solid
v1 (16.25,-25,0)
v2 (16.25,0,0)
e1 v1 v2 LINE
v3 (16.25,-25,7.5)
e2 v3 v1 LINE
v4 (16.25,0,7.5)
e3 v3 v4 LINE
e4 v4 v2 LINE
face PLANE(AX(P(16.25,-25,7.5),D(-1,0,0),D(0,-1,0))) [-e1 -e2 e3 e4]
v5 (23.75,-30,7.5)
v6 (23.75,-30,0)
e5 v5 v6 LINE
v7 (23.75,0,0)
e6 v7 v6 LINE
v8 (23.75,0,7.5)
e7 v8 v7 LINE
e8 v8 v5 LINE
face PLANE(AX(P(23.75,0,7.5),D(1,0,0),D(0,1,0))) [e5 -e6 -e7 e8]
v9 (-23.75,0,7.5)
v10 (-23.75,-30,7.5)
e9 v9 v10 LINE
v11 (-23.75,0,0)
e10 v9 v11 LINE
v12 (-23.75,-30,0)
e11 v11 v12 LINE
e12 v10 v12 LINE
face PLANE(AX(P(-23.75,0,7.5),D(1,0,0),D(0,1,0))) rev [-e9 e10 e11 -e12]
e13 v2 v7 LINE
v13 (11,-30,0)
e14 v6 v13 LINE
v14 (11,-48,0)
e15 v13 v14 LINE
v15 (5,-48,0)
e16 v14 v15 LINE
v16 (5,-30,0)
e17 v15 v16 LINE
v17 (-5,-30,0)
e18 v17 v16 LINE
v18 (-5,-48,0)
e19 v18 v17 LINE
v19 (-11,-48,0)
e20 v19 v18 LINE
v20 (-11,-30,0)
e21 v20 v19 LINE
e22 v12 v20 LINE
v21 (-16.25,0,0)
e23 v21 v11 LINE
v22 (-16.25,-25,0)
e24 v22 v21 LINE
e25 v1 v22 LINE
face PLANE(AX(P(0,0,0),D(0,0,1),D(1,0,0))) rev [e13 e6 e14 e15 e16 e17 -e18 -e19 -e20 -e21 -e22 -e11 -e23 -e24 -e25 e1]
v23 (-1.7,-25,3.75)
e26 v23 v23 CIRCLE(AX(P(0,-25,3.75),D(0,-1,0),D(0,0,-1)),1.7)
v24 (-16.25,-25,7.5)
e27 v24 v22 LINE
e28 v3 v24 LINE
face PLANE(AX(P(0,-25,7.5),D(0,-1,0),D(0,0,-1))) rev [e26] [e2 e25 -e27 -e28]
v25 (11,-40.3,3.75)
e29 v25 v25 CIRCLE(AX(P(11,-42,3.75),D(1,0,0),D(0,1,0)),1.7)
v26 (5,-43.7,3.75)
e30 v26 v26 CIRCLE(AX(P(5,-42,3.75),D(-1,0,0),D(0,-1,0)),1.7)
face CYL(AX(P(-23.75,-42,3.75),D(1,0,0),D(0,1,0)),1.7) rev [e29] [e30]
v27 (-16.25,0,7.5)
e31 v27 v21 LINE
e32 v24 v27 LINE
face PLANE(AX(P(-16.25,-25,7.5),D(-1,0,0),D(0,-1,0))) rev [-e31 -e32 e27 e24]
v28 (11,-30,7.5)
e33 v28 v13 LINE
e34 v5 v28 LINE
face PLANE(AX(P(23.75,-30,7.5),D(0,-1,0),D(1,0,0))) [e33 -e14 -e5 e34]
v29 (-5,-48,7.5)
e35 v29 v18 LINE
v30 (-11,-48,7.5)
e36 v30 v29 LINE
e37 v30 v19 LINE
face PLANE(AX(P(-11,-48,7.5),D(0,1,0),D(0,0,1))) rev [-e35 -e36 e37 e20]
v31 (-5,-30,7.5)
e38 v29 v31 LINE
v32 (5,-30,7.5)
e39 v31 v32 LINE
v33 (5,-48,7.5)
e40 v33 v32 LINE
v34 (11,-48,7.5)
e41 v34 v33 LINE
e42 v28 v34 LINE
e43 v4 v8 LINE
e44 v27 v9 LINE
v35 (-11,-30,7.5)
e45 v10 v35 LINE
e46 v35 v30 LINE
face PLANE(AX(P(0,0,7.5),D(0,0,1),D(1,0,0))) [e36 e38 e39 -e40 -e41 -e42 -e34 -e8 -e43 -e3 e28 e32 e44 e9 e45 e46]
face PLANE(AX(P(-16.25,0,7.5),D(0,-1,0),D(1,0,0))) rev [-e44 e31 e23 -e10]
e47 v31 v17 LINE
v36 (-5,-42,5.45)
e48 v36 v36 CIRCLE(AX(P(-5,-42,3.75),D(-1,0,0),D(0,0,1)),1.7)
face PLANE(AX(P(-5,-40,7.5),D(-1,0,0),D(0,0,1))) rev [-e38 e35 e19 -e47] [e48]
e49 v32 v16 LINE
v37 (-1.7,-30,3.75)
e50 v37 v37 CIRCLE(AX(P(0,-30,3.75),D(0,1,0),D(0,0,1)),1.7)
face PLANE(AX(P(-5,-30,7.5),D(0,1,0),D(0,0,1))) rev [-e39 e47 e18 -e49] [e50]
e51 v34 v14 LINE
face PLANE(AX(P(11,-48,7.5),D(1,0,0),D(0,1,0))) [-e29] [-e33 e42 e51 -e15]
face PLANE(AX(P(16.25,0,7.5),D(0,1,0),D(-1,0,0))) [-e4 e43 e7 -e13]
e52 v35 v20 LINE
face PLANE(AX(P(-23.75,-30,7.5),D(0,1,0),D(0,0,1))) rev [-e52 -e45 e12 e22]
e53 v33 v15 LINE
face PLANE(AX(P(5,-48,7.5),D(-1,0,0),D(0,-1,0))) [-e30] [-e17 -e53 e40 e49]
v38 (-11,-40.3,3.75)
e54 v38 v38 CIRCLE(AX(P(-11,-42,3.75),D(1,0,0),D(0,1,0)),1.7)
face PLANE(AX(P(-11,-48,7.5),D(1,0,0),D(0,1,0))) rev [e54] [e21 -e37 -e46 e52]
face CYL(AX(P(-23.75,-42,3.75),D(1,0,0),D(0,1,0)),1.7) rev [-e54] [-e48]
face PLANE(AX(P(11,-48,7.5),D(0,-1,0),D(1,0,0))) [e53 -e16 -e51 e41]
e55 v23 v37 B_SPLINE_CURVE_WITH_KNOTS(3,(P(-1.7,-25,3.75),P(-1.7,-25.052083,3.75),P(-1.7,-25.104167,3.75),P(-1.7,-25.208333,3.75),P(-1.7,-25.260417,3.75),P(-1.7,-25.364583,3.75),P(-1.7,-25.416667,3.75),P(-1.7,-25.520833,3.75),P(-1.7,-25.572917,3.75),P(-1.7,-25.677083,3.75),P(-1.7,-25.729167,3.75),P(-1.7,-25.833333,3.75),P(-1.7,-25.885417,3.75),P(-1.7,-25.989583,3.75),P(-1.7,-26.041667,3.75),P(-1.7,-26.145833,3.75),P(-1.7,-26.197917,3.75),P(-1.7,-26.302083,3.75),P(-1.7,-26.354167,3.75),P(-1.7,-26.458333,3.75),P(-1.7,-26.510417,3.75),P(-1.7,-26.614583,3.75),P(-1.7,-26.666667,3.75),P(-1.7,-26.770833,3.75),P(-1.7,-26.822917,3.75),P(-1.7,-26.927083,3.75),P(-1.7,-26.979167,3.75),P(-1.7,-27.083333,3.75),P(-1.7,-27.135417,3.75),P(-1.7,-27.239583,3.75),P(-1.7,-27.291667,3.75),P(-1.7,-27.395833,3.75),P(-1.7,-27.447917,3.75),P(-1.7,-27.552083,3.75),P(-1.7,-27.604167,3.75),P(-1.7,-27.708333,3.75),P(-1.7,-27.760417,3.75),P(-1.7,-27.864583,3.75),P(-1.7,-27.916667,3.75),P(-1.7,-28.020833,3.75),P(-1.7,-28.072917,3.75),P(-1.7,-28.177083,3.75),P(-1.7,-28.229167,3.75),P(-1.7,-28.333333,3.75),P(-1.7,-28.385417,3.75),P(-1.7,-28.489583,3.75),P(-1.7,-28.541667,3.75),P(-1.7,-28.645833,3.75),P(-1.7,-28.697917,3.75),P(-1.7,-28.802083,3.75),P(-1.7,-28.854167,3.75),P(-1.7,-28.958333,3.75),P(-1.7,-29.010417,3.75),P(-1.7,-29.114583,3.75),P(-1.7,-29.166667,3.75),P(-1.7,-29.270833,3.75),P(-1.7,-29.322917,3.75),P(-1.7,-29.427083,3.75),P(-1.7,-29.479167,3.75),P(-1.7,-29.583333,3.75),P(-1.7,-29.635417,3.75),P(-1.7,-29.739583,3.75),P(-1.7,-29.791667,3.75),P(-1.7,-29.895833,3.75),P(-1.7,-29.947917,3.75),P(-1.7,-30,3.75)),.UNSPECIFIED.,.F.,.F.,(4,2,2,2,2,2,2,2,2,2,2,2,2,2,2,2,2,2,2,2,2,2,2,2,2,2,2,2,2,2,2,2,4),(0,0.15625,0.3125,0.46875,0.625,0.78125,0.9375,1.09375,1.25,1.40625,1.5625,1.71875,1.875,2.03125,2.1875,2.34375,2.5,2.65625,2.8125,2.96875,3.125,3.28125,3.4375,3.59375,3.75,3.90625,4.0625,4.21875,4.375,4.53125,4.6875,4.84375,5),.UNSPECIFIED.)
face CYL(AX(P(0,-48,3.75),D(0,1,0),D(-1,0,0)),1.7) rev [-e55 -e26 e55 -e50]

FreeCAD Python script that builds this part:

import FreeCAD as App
import Part
import Sketcher
from FreeCAD import Vector


def add_polygon(sketch, points):
    """Adds a closed chain of lines whose ends are joined by coincident constraints."""
    first, n = sketch.GeometryCount, len(points)
    for a, b in zip(points, points[1:] + points[:1]):
        sketch.addGeometry(Part.LineSegment(App.Vector(*a, 0), App.Vector(*b, 0)), False)
    for i in range(n):
        sketch.addConstraint(Sketcher.Constraint("Coincident", first + i, 2, first + (i + 1) % n, 1))

doc = App.newDocument("Part")
body = doc.addObject("PartDesign::Body", "Body")

# Sketch on XY plane
sketch1 = doc.addObject("Sketcher::SketchObject", "Sketch")
body.addObject(sketch1)
sketch1.AttachmentSupport = (doc.XY_Plane, [""])
sketch1.MapMode = "FlatFace"
add_polygon(sketch1, [(-24, 0), (-24, -30), (-11, -30), (-11, -48), (-5, -48), (-5, -30), (0, -30), (0, -25), (-16, -25), (-16, 0)])  # lines 0-9
sketch1.addConstraint([
    Sketcher.Constraint("Vertical", 0),
    Sketcher.Constraint("Horizontal", 1),
    Sketcher.Constraint("Vertical", 2),
    Sketcher.Constraint("Horizontal", 3),
    Sketcher.Constraint("Vertical", 4),
    Sketcher.Constraint("Horizontal", 5),
    Sketcher.Constraint("Vertical", 6),
    Sketcher.Constraint("Horizontal", 7),
    Sketcher.Constraint("Vertical", 8),
    Sketcher.Constraint("Horizontal", 9),
    Sketcher.Constraint("PointOnObject", 5, 2, -2),
    Sketcher.Constraint("PointOnObject", 8, 2, -1),
    Sketcher.Constraint("Horizontal", 1, 2, 4, 2),
    Sketcher.Constraint("Equal", 5, 6),
    Sketcher.Constraint("DistanceX", 3, 1, 3, 2, 6.0),
    Sketcher.Constraint("DistanceX", 5, 1, 5, 2, 5.0),
    Sketcher.Constraint("DistanceY", 0, 2, 0, 1, 30.0),
    Sketcher.Constraint("DistanceY", 2, 2, 2, 1, 18.0),
    Sketcher.Constraint("DistanceX", 9, 2, 9, 1, 7.5),
    Sketcher.Constraint("DistanceX", 1, 1, 1, 2, 12.75),
])
pad1 = doc.addObject("PartDesign::Pad", "Pad")
body.addObject(pad1)
pad1.Profile = sketch1
pad1.Length = 7.5
doc.recompute()

mirrored = doc.addObject("PartDesign::Mirrored", "Mirrored")
body.addObject(mirrored)
mirrored.Originals = [pad1]
mirrored.MirrorPlane = (doc.YZ_Plane, [""])
body.Tip = mirrored

# Sketch on YZ plane
sketch2 = doc.addObject("Sketcher::SketchObject", "Sketch001")
body.addObject(sketch2)
sketch2.AttachmentSupport = (doc.YZ_Plane, [""])
sketch2.MapMode = "FlatFace"
sketch2.AttachmentOffset = App.Placement(Vector(0, 0, 11), App.Rotation())
sketch2.addGeometry(Part.Circle(Vector(-42, 3.8, 0), Vector(0, 0, 1), 1.7), False)
sketch2.addConstraint([
    Sketcher.Constraint("Diameter", 0, 3.4),
    Sketcher.Constraint("DistanceX", 0, 3, -1, 1, 42.0),
    Sketcher.Constraint("DistanceY", -1, 1, 0, 3, 3.75),
])
pocket1 = doc.addObject("PartDesign::Pocket", "Pocket")
body.addObject(pocket1)
pocket1.Profile = sketch2
pocket1.Type = "ThroughAll"

# Sketch on XZ plane
sketch3 = doc.addObject("Sketcher::SketchObject", "Sketch002")
body.addObject(sketch3)
sketch3.AttachmentSupport = (doc.XZ_Plane, [""])
sketch3.MapMode = "FlatFace"
sketch3.addGeometry(Part.Circle(Vector(0, 3.8, 0), Vector(0, 0, 1), 1.7), False)
sketch3.addConstraint([
    Sketcher.Constraint("PointOnObject", 0, 3, -2),
    Sketcher.Constraint("Diameter", 0, 3.4),
    Sketcher.Constraint("DistanceY", -1, 1, 0, 3, 3.75),
])
pocket2 = doc.addObject("PartDesign::Pocket", "Pocket001")
body.addObject(pocket2)
pocket2.Profile = sketch3
pocket2.Type = "ThroughAll"
pocket2.Reversed = True

doc.recompute()
